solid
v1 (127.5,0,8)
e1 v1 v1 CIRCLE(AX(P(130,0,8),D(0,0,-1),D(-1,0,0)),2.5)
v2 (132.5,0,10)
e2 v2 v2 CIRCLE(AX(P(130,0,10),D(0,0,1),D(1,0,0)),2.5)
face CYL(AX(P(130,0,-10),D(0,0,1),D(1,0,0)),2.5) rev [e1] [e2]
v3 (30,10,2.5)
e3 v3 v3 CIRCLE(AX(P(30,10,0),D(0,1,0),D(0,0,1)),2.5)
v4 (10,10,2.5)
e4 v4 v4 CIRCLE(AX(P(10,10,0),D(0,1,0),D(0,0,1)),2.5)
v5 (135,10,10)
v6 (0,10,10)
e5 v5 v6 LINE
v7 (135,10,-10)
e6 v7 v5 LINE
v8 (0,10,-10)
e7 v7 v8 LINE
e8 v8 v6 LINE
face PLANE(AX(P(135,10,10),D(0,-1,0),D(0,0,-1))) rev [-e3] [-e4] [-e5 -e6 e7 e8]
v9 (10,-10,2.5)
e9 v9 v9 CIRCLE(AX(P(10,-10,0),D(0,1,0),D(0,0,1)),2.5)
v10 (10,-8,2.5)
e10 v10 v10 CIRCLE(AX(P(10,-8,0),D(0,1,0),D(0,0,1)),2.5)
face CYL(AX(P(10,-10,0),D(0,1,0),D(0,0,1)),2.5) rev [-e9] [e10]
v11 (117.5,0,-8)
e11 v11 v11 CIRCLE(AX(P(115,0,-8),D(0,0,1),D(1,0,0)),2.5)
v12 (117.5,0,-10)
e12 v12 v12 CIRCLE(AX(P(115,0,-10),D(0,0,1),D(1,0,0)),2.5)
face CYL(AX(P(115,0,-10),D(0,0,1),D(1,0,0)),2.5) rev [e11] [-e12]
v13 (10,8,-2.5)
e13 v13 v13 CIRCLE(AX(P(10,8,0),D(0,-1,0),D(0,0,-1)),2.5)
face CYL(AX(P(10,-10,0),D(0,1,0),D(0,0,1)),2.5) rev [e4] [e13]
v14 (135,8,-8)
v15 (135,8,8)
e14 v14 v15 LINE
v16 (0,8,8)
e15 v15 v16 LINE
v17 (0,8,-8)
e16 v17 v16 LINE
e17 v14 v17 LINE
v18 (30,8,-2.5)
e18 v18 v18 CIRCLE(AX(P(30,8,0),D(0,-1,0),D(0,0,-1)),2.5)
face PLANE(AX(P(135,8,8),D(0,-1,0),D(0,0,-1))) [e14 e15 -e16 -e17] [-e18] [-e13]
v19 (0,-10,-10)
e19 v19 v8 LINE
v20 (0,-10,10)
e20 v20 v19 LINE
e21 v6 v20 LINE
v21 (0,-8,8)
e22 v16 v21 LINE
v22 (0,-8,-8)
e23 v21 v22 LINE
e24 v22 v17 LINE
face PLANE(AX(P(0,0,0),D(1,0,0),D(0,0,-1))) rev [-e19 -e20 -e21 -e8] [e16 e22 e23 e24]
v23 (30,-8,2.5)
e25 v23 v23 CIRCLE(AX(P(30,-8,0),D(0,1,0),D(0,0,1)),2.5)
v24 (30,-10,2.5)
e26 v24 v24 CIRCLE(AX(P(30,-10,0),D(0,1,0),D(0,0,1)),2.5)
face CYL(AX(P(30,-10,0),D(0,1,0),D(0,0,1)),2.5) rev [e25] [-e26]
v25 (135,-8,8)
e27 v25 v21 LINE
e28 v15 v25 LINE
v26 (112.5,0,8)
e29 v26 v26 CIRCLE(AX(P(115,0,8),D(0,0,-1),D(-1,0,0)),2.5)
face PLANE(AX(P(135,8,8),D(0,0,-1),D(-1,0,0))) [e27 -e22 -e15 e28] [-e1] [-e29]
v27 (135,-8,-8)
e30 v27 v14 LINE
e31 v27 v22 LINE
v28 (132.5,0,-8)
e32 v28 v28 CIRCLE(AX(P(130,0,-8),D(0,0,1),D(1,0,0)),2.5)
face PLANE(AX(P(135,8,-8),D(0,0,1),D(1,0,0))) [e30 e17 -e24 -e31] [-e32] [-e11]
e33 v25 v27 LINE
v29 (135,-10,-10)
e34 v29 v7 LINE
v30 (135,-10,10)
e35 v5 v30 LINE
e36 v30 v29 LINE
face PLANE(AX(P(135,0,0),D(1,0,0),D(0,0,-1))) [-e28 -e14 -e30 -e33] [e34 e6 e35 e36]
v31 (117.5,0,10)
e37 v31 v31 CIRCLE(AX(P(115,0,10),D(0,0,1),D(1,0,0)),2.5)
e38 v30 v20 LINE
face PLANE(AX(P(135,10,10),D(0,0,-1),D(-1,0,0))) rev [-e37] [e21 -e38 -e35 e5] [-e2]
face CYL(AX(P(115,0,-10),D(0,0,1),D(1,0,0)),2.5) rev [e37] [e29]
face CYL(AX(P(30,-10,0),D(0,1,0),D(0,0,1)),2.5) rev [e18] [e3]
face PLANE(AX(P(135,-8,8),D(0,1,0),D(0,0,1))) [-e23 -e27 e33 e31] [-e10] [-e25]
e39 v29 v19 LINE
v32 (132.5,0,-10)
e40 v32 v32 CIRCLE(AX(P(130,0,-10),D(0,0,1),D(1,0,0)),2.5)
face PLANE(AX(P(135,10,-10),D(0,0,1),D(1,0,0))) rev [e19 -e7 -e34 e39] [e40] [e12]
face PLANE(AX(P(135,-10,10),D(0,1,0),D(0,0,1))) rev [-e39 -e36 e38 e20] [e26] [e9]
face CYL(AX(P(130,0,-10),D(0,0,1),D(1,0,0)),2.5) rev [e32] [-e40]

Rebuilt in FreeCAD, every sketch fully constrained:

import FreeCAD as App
import Part
import Sketcher

doc = App.newDocument("Part")
body = doc.addObject("PartDesign::Body", "Body")

# Sketch on YZ plane
sketch1 = body.newObject("Sketcher::SketchObject", "Sketch")
sketch1.AttachmentSupport = (doc.getObject("YZ_Plane"), [""])
sketch1.MapMode = "FlatFace"
sketch1.addGeometry([
    Part.LineSegment(App.Vector(10, 10, 0), App.Vector(-10, 10, 0)),  # 0
    Part.LineSegment(App.Vector(-10, 10, 0), App.Vector(-10, -10, 0)),  # 1
    Part.LineSegment(App.Vector(-10, -10, 0), App.Vector(10, -10, 0)),  # 2
    Part.LineSegment(App.Vector(10, -10, 0), App.Vector(10, 10, 0)),  # 3
    Part.LineSegment(App.Vector(-8, -8, 0), App.Vector(-8, 8, 0)),  # 4
    Part.LineSegment(App.Vector(-8, 8, 0), App.Vector(8, 8, 0)),  # 5
    Part.LineSegment(App.Vector(8, 8, 0), App.Vector(8, -8, 0)),  # 6
    Part.LineSegment(App.Vector(8, -8, 0), App.Vector(-8, -8, 0)),  # 7
], False)
sketch1.addConstraint([
    Sketcher.Constraint("Coincident", 0, 2, 1, 1),
    Sketcher.Constraint("Coincident", 1, 2, 2, 1),
    Sketcher.Constraint("Coincident", 2, 2, 3, 1),
    Sketcher.Constraint("Coincident", 3, 2, 0, 1),
    Sketcher.Constraint("Coincident", 4, 2, 5, 1),
    Sketcher.Constraint("Coincident", 5, 2, 6, 1),
    Sketcher.Constraint("Coincident", 6, 2, 7, 1),
    Sketcher.Constraint("Coincident", 7, 2, 4, 1),
    Sketcher.Constraint("Horizontal", 0),
    Sketcher.Constraint("Vertical", 1),
    Sketcher.Constraint("Horizontal", 2),
    Sketcher.Constraint("Vertical", 3),
    Sketcher.Constraint("Vertical", 4),
    Sketcher.Constraint("Horizontal", 5),
    Sketcher.Constraint("Vertical", 6),
    Sketcher.Constraint("Horizontal", 7),
    Sketcher.Constraint("Symmetric", 0, 2, 2, 2, -1, 1),
    Sketcher.Constraint("Symmetric", 4, 2, 6, 2, -1, 1),
    Sketcher.Constraint("Equal", 2, 1),
    Sketcher.Constraint("Equal", 7, 4),
    Sketcher.Constraint("DistanceX", 0, 2, 0, 1, 20.0),
    Sketcher.Constraint("DistanceX", 5, 1, 5, 2, 16.0),
])
pad1 = body.newObject("PartDesign::Pad", "Pad")
pad1.Profile = sketch1
pad1.Length = 135

# Sketch on XY plane
sketch2 = body.newObject("Sketcher::SketchObject", "Sketch001")
sketch2.AttachmentSupport = (doc.getObject("XY_Plane"), [""])
sketch2.MapMode = "FlatFace"
sketch2.AttachmentOffset = App.Placement(App.Vector(0, 0, 10), App.Rotation())
sketch2.addGeometry([
    Part.Circle(App.Vector(130, 0, 0), App.Vector(0, 0, 1), 2.5),
    Part.Circle(App.Vector(115, 0, 0), App.Vector(0, 0, 1), 2.5),
], False)
sketch2.addConstraint([
    Sketcher.Constraint("Equal", 0, 1),
    Sketcher.Constraint("PointOnObject", 0, 3, -1),
    Sketcher.Constraint("PointOnObject", 1, 3, -1),
    Sketcher.Constraint("Diameter", 0, 5.0),
    Sketcher.Constraint("DistanceX", -1, 1, 0, 3, 130.0),
    Sketcher.Constraint("DistanceX", -1, 1, 1, 3, 115.0),
])
pocket1 = body.newObject("PartDesign::Pocket", "Pocket")
pocket1.Profile = sketch2
pocket1.Type = "ThroughAll"

# Sketch on XZ plane
sketch3 = body.newObject("Sketcher::SketchObject", "Sketch002")
sketch3.AttachmentSupport = (doc.getObject("XZ_Plane"), [""])
sketch3.MapMode = "FlatFace"
sketch3.AttachmentOffset = App.Placement(App.Vector(0, 0, -10), App.Rotation())
sketch3.addGeometry([
    Part.Circle(App.Vector(10, 0, 0), App.Vector(0, 0, 1), 2.5),
    Part.Circle(App.Vector(30, 0, 0), App.Vector(0, 0, 1), 2.5),
], False)
sketch3.addConstraint([
    Sketcher.Constraint("Equal", 0, 1),
    Sketcher.Constraint("PointOnObject", 0, 3, -1),
    Sketcher.Constraint("PointOnObject", 1, 3, -1),
    Sketcher.Constraint("Diameter", 0, 5.0),
    Sketcher.Constraint("DistanceX", -1, 1, 0, 3, 10.0),
    Sketcher.Constraint("DistanceX", -1, 1, 1, 3, 30.0),
])
pocket2 = body.newObject("PartDesign::Pocket", "Pocket001")
pocket2.Profile = sketch3
pocket2.Type = "ThroughAll"
pocket2.Reversed = True

doc.recompute()
